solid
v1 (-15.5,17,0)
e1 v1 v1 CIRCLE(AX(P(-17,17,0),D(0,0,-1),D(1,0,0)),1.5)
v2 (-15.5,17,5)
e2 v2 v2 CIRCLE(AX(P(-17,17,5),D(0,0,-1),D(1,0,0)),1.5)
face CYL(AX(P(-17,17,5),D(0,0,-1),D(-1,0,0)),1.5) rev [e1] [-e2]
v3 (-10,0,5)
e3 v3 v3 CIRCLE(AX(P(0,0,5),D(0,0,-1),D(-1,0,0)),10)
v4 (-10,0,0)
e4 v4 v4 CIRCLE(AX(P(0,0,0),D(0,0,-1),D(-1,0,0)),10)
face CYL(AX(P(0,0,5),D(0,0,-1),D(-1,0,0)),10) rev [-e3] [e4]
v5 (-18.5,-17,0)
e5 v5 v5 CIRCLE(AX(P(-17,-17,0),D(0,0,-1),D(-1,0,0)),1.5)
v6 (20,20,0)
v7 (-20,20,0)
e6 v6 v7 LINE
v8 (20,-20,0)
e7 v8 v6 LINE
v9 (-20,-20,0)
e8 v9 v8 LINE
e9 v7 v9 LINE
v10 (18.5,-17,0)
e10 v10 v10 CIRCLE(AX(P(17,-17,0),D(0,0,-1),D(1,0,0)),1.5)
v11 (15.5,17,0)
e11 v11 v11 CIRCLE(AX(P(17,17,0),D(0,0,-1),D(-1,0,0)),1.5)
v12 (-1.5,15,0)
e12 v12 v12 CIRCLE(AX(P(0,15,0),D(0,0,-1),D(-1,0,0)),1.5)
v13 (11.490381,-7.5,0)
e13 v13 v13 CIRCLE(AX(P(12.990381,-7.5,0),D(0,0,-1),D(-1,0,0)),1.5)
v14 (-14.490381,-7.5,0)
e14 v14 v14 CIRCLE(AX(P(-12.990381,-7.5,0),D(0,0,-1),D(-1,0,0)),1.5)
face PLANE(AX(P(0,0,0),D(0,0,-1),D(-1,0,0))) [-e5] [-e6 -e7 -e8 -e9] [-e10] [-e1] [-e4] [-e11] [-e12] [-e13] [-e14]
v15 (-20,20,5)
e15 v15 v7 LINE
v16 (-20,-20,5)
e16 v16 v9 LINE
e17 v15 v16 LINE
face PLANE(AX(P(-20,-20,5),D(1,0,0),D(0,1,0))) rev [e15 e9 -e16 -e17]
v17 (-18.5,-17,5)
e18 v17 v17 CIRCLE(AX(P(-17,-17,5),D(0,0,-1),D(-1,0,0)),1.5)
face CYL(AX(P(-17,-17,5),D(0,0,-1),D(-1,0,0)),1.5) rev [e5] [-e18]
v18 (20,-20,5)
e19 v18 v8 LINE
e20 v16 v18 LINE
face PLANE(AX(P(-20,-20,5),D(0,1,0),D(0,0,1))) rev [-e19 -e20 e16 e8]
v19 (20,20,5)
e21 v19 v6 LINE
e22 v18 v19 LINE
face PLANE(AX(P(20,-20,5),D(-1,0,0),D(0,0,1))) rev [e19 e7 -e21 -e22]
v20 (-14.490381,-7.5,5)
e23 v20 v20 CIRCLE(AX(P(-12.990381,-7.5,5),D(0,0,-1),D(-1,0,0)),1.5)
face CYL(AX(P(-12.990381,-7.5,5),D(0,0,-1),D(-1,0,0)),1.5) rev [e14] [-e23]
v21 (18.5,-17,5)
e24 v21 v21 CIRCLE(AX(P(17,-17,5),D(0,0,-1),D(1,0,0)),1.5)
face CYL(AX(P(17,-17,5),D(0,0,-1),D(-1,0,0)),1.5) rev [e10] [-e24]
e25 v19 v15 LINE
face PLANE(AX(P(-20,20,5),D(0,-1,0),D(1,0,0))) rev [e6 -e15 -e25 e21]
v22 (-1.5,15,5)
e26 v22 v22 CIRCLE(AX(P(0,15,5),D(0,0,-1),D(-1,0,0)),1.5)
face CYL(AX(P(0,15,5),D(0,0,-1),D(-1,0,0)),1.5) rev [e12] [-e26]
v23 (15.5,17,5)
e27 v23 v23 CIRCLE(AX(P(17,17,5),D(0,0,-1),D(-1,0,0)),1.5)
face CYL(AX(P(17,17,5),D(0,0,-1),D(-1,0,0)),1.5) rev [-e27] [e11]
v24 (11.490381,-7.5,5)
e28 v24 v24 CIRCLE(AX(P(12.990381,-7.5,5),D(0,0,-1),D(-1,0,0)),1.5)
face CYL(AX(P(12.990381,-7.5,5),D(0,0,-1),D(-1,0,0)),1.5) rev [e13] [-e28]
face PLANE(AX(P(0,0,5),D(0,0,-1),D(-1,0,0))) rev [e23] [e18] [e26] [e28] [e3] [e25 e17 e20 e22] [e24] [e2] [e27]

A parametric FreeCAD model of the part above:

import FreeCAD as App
import Part
import Sketcher
Q = App.Units.Quantity


def add_polygon(sketch, points):
    """Adds a closed chain of lines whose ends are joined by coincident constraints."""
    first, n = sketch.GeometryCount, len(points)
    for a, b in zip(points, points[1:] + points[:1]):
        sketch.addGeometry(Part.LineSegment(App.Vector(*a, 0), App.Vector(*b, 0)), False)
    for i in range(n):
        sketch.addConstraint(Sketcher.Constraint("Coincident", first + i, 2, first + (i + 1) % n, 1))

doc = App.newDocument("Part")
body = doc.addObject("PartDesign::Body", "Body")

# Sketch on XY plane
sketch1 = body.newObject("Sketcher::SketchObject", "Sketch")
sketch1.AttachmentSupport = (doc.getObject("XY_Plane"), [""])
sketch1.MapMode = "FlatFace"
add_polygon(sketch1, [(-20, 20), (-20, -20), (20, -20), (20, 20)])  # lines 0-3
sketch1.addConstraint(Sketcher.Constraint("Vertical", 0))
sketch1.addConstraint(Sketcher.Constraint("Horizontal", 1))
sketch1.addConstraint(Sketcher.Constraint("Vertical", 2))
sketch1.addConstraint(Sketcher.Constraint("Horizontal", 3))
sketch1.addConstraint(Sketcher.Constraint("Symmetric", 0, 2, 2, 2, -1, 1))
sketch1.addConstraint(Sketcher.Constraint("Equal", 3, 0))
sketch1.addConstraint(Sketcher.Constraint("DistanceX", 1, 1, 1, 2, Q("40 mm")))
pad1 = body.newObject("PartDesign::Pad", "Pad")
pad1.Profile = sketch1
pad1.Length = 5

# Sketch on XY plane
sketch2 = body.newObject("Sketcher::SketchObject", "Sketch001")
sketch2.AttachmentSupport = (doc.getObject("XY_Plane"), [""])
sketch2.MapMode = "FlatFace"
sketch2.addGeometry(Part.Circle(App.Vector(0, 0, 0), App.Vector(0, 0, 1), 10), False)
sketch2.addConstraint(Sketcher.Constraint("Coincident", 0, 3, -1, 1))
sketch2.addConstraint(Sketcher.Constraint("Diameter", 0, Q("20 mm")))
pocket1 = body.newObject("PartDesign::Pocket", "Pocket")
pocket1.Profile = sketch2
pocket1.Length = 5
pocket1.Reversed = True

# Sketch on XY plane
sketch3 = body.newObject("Sketcher::SketchObject", "Sketch002")
sketch3.AttachmentSupport = (doc.getObject("XY_Plane"), [""])
sketch3.MapMode = "FlatFace"
sketch3.addGeometry(Part.Circle(App.Vector(0, 15, 0), App.Vector(0, 0, 1), 1.5), False)
sketch3.addGeometry(Part.Circle(App.Vector(-13, -7.5, 0), App.Vector(0, 0, 1), 1.5), False)
sketch3.addGeometry(Part.Circle(App.Vector(13, -7.5, 0), App.Vector(0, 0, 1), 1.5), False)
sketch3.addConstraint(Sketcher.Constraint("Equal", 0, 1))
sketch3.addConstraint(Sketcher.Constraint("Equal", 1, 2))
sketch3.addConstraint(Sketcher.Constraint("Symmetric", 1, 3, 2, 3, -2))
sketch3.addConstraint(Sketcher.Constraint("PointOnObject", 0, 3, -2))
sketch3.addConstraint(Sketcher.Constraint("Diameter", 0, Q("3 mm")))
sketch3.addConstraint(Sketcher.Constraint("DistanceY", -1, 1, 0, 3, Q("15 mm")))
sketch3.addConstraint(Sketcher.Constraint("DistanceY", 1, 3, -1, 1, Q("7.5 mm")))
sketch3.addConstraint(Sketcher.Constraint("DistanceX", 1, 3, -1, 1, Q("12.990381 mm")))
pocket2 = body.newObject("PartDesign::Pocket", "Pocket001")
pocket2.Profile = sketch3
pocket2.Length = 5
pocket2.Reversed = True

# Sketch on XY plane
sketch4 = body.newObject("Sketcher::SketchObject", "Sketch003")
sketch4.AttachmentSupport = (doc.getObject("XY_Plane"), [""])
sketch4.MapMode = "FlatFace"
sketch4.addGeometry(Part.Circle(App.Vector(17, 17, 0), App.Vector(0, 0, 1), 1.5), False)
sketch4.addGeometry(Part.Circle(App.Vector(-17, 17, 0), App.Vector(0, 0, 1), 1.5), False)
sketch4.addGeometry(Part.Circle(App.Vector(-17, -17, 0), App.Vector(0, 0, 1), 1.5), False)
sketch4.addGeometry(Part.Circle(App.Vector(17, -17, 0), App.Vector(0, 0, 1), 1.5), False)
sketch4.addConstraint(Sketcher.Constraint("Equal", 0, 1))
sketch4.addConstraint(Sketcher.Constraint("Equal", 1, 2))
sketch4.addConstraint(Sketcher.Constraint("Equal", 2, 3))
sketch4.addConstraint(Sketcher.Constraint("Symmetric", 0, 3, 2, 3, -1, 1))
sketch4.addConstraint(Sketcher.Constraint("Symmetric", 1, 3, 3, 3, -1, 1))
sketch4.addConstraint(Sketcher.Constraint("Symmetric", 0, 3, 1, 3, -2))
sketch4.addConstraint(Sketcher.Constraint("Diameter", 0, Q("3 mm")))
sketch4.addConstraint(Sketcher.Constraint("DistanceX", -1, 1, 0, 3, Q("17 mm")))
sketch4.addConstraint(Sketcher.Constraint("DistanceY", -1, 1, 0, 3, Q("17 mm")))
pocket3 = body.newObject("PartDesign::Pocket", "Pocket002")
pocket3.Profile = sketch4
pocket3.Length = 5
pocket3.Reversed = True

doc.recompute()
